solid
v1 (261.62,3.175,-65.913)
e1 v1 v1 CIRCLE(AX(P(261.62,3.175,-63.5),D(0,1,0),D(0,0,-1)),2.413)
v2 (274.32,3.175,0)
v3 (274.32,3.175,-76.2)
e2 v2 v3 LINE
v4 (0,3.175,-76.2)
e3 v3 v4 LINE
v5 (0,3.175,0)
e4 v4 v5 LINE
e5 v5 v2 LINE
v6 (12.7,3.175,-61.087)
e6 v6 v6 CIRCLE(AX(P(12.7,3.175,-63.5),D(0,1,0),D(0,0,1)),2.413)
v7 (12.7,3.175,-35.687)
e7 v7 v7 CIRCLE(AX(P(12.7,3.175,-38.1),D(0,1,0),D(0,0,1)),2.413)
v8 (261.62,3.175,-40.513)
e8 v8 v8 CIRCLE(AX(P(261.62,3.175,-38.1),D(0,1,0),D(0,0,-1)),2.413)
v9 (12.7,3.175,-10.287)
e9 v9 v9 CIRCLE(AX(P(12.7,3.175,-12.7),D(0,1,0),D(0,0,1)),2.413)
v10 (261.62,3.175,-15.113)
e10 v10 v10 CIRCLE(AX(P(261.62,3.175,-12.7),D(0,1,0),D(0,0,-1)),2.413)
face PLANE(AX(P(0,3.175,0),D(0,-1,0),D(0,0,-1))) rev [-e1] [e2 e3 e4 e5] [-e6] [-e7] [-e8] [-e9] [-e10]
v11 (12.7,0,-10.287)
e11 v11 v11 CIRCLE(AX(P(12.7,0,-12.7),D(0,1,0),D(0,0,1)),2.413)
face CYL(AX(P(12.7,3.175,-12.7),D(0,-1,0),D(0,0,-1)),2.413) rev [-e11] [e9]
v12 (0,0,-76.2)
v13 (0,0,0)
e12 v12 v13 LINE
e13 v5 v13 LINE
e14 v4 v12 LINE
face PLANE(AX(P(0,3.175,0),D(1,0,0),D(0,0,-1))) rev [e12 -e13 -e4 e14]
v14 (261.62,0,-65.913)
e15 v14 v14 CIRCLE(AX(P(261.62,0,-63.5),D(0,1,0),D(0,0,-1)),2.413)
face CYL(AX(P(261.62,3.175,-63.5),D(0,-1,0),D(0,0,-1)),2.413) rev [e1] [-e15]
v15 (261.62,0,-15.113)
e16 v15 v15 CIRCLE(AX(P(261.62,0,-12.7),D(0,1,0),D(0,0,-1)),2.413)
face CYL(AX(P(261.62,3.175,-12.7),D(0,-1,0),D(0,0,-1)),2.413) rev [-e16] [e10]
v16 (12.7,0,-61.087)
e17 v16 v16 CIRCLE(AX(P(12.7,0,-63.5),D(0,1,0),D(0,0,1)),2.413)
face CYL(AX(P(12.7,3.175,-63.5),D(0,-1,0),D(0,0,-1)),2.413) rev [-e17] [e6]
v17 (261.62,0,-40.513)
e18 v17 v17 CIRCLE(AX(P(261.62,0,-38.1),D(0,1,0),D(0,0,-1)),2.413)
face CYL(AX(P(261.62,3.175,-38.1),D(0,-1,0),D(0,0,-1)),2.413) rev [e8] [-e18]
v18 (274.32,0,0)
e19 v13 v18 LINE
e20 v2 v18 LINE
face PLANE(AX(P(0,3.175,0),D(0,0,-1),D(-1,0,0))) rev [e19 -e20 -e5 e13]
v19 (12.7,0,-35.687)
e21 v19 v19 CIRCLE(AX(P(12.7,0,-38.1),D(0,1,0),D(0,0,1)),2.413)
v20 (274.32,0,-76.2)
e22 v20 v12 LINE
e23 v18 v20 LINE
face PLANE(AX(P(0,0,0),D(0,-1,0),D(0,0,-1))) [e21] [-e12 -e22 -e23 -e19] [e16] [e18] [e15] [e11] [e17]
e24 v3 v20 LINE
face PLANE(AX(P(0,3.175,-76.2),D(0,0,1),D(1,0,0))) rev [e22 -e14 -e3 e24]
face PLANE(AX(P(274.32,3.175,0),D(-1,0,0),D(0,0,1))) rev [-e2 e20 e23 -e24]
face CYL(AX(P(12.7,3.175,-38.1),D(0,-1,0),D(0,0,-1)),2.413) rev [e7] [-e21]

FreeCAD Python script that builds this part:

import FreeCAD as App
import Part
import Sketcher

V = App.Vector
Q = App.Units.Quantity


def add_polygon(sketch, points):
    """Adds a closed chain of lines whose ends are joined by coincident constraints."""
    first, n = sketch.GeometryCount, len(points)
    for a, b in zip(points, points[1:] + points[:1]):
        sketch.addGeometry(Part.LineSegment(App.Vector(*a, 0), App.Vector(*b, 0)), False)
    for i in range(n):
        sketch.addConstraint(Sketcher.Constraint("Coincident", first + i, 2, first + (i + 1) % n, 1))

doc = App.newDocument("Part")
params = doc.addObject("Spreadsheet::Sheet", "Params")
for row, (alias, value) in enumerate([
    ("sketch1_diameter", "0.19 in"),
    ("sketch1_height", "3 in"),
    ("sketch1_width", "10.8 in"),
    ("pad1_length", "0.125 in"),
], start=1):
    params.set(f"A{row}", alias)
    params.set(f"B{row}", "=" + value)
    params.setAlias(f"B{row}", alias)

body = doc.addObject("PartDesign::Body", "Body")

sketch1 = body.newObject("Sketcher::SketchObject", "Sketch")
sketch1.AttachmentSupport = (doc.getObject("XZ_Plane"), [""])
sketch1.MapMode = "FlatFace"
add_polygon(sketch1, [(0, -76.2), (0, 0), (274.3, 0), (274.3, -76.2)])
sketch1.addGeometry(Part.Circle(V(12.7, -12.7, 0), V(0, 0, 1), 2.4), False)
sketch1.addGeometry(Part.Circle(V(261.6, -12.7, 0), V(0, 0, 1), 2.4), False)
sketch1.addGeometry(Part.Circle(V(12.7, -38.1, 0), V(0, 0, 1), 2.4), False)
sketch1.addGeometry(Part.Circle(V(12.7, -63.5, 0), V(0, 0, 1), 2.4), False)
sketch1.addGeometry(Part.Circle(V(261.6, -38.1, 0), V(0, 0, 1), 2.4), False)
sketch1.addGeometry(Part.Circle(V(261.6, -63.5, 0), V(0, 0, 1), 2.4), False)
sketch1.addConstraint(Sketcher.Constraint("Vertical", 0))
sketch1.addConstraint(Sketcher.Constraint("Horizontal", 1))
sketch1.addConstraint(Sketcher.Constraint("Vertical", 2))
sketch1.addConstraint(Sketcher.Constraint("Horizontal", 3))
sketch1.addConstraint(Sketcher.Constraint("Coincident", 0, 2, -1, 1))
sketch1.addConstraint(Sketcher.Constraint("Equal", 4, 5))
sketch1.addConstraint(Sketcher.Constraint("Equal", 5, 6))
sketch1.addConstraint(Sketcher.Constraint("Equal", 6, 7))
sketch1.addConstraint(Sketcher.Constraint("Equal", 7, 8))
sketch1.addConstraint(Sketcher.Constraint("Equal", 8, 9))
sketch1.addConstraint(Sketcher.Constraint("Horizontal", 4, 3, 5, 3))
sketch1.addConstraint(Sketcher.Constraint("Horizontal", 6, 3, 8, 3))
sketch1.addConstraint(Sketcher.Constraint("Horizontal", 7, 3, 9, 3))
sketch1.addConstraint(Sketcher.Constraint("Vertical", 4, 3, 6, 3))
sketch1.addConstraint(Sketcher.Constraint("Vertical", 6, 3, 7, 3))
sketch1.addConstraint(Sketcher.Constraint("Vertical", 5, 3, 8, 3))
sketch1.addConstraint(Sketcher.Constraint("Vertical", 8, 3, 9, 3))
sketch1.addConstraint(Sketcher.Constraint("Diameter", 4, Q("0.19 in")))
sketch1.addConstraint(Sketcher.Constraint("DistanceY", 0, 1, 0, 2, Q("3 in")))
sketch1.addConstraint(Sketcher.Constraint("DistanceX", 1, 1, 1, 2, Q("10.8 in")))
sketch1.addConstraint(Sketcher.Constraint("DistanceY", 6, 3, 4, 3, Q("1 in")))
sketch1.addConstraint(Sketcher.Constraint("DistanceY", 7, 3, 6, 3, Q("1 in")))
sketch1.addConstraint(Sketcher.Constraint("DistanceX", -1, 1, 4, 3, Q("0.5 in")))
sketch1.addConstraint(Sketcher.Constraint("DistanceY", 4, 3, -1, 1, Q("0.5 in")))
sketch1.addConstraint(Sketcher.Constraint("DistanceX", -1, 1, 5, 3, Q("10.3 in")))
sketch1.setExpression("Constraints[21]", "Params.sketch1_diameter")
sketch1.setExpression("Constraints[22]", "Params.sketch1_height")
sketch1.setExpression("Constraints[23]", "Params.sketch1_width")
pad1 = body.newObject("PartDesign::Pad", "Pad")
pad1.Profile = sketch1
pad1.setExpression("Length", "Params.pad1_length")
pad1.Reversed = True

doc.recompute()
